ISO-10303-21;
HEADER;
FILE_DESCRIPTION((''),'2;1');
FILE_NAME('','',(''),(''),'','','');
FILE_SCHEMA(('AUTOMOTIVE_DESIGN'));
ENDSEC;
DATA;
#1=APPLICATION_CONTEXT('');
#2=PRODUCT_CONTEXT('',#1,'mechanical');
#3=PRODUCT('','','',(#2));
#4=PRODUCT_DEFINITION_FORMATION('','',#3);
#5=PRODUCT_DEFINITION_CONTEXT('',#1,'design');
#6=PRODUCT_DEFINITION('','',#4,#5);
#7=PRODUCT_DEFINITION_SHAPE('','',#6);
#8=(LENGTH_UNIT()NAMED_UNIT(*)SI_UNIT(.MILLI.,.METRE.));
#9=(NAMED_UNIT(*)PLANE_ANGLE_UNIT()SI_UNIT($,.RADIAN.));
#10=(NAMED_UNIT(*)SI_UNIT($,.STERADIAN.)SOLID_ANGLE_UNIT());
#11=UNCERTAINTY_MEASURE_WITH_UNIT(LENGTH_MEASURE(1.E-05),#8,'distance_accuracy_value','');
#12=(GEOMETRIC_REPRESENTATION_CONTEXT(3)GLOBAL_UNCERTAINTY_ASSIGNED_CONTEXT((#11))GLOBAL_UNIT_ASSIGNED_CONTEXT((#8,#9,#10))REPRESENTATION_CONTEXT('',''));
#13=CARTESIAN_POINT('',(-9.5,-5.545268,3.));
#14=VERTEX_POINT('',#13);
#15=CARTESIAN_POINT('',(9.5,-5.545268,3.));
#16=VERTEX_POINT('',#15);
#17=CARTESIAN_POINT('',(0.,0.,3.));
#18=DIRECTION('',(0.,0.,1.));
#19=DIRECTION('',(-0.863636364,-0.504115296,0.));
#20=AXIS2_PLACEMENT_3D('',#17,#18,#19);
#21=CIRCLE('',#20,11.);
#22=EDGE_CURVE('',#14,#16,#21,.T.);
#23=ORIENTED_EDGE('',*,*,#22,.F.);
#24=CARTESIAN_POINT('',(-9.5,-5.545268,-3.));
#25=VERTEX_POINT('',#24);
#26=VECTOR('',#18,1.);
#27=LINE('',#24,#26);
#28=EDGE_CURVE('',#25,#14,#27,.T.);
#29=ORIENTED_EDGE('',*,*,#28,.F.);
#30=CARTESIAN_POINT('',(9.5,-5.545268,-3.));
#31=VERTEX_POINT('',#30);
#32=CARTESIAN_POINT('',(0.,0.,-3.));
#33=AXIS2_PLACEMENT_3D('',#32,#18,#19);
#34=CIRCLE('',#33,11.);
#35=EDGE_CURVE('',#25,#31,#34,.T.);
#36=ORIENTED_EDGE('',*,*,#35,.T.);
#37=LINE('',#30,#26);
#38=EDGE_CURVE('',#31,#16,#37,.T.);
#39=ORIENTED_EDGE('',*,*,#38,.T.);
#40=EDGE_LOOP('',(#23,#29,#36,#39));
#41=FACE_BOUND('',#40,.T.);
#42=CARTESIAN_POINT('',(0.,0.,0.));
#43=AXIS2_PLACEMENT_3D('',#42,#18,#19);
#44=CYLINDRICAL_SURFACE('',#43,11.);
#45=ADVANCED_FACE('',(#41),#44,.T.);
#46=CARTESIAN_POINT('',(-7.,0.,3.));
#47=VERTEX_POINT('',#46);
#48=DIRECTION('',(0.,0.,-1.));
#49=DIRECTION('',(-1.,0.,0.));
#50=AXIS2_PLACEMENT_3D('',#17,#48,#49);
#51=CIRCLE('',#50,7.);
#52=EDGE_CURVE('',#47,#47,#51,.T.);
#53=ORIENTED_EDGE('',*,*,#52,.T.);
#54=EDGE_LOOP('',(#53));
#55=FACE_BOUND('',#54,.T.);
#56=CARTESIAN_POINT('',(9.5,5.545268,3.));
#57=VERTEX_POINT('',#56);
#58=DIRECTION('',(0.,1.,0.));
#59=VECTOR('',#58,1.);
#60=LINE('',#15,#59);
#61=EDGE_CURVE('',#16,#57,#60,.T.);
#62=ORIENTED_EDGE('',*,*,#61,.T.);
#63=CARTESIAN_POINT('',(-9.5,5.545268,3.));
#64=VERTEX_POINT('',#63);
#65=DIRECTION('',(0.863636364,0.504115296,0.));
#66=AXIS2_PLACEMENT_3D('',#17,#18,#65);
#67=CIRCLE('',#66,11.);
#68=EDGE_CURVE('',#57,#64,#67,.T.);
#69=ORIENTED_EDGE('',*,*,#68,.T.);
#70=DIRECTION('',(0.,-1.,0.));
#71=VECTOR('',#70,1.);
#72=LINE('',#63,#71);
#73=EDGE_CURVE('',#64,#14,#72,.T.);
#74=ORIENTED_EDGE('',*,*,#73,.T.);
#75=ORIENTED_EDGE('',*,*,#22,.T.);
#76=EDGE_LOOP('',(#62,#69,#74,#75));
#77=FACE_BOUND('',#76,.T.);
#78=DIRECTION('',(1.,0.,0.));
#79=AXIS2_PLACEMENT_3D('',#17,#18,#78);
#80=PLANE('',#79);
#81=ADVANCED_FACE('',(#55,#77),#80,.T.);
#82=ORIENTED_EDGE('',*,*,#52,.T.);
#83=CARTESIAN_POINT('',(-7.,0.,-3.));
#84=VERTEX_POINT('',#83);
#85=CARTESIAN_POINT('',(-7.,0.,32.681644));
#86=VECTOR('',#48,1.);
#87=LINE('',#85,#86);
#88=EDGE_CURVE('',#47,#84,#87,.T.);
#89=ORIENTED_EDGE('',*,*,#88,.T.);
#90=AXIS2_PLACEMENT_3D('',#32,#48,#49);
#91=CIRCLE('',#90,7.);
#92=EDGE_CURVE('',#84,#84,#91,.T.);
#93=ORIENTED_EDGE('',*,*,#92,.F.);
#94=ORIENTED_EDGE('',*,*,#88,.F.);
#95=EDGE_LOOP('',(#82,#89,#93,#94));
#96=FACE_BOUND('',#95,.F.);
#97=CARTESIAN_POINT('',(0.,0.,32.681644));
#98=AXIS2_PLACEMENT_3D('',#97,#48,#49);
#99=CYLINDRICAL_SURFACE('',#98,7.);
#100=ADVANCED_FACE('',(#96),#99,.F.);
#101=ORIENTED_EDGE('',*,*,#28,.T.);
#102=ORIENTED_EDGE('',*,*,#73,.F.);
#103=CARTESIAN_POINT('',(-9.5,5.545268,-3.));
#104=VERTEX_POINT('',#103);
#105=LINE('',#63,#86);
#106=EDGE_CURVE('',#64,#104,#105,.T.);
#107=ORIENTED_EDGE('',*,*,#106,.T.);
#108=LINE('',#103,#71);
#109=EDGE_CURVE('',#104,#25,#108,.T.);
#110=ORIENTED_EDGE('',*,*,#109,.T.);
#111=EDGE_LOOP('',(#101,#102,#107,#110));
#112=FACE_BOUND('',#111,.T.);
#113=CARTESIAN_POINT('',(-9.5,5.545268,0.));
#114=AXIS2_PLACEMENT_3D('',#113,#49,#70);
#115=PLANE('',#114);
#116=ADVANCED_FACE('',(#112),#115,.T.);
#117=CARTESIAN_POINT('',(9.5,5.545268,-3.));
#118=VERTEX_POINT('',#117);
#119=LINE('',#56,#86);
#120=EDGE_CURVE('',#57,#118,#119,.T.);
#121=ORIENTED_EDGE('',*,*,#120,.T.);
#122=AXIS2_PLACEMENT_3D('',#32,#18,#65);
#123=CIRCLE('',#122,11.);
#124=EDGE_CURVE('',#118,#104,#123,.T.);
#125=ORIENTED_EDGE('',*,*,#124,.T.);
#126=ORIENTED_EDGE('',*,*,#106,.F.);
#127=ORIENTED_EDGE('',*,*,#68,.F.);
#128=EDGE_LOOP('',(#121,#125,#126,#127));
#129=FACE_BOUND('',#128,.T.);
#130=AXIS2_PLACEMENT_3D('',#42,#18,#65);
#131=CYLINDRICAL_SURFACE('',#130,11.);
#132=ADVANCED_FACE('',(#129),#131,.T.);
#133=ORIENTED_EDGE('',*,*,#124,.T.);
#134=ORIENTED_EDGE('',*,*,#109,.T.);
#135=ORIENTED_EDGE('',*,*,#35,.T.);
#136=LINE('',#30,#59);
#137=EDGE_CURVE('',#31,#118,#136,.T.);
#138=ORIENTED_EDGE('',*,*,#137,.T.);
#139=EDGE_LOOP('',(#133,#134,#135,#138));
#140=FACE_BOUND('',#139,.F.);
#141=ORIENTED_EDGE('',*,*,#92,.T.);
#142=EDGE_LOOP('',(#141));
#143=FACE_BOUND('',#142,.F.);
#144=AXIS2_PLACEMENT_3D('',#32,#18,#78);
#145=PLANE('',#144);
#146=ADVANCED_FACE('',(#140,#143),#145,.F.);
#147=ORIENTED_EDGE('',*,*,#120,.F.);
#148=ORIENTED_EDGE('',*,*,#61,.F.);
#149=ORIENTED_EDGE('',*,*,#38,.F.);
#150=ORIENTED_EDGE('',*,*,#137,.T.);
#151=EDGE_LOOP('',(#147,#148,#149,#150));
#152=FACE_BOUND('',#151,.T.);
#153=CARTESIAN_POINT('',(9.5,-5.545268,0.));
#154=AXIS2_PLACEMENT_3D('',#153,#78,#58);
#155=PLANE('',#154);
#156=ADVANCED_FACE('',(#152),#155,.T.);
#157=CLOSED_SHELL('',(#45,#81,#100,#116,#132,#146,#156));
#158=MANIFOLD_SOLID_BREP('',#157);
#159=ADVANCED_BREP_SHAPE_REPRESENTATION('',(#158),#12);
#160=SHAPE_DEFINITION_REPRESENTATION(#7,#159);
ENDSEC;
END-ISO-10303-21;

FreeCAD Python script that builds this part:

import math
import FreeCAD as App
import Part
import Sketcher
from FreeCAD import Vector

doc = App.newDocument("Part")
body = doc.addObject("PartDesign::Body", "Body")

sketch1 = body.newObject("Sketcher::SketchObject", "Sketch")
sketch1.AttachmentSupport = (doc.getObject("XY_Plane"), [""])
sketch1.MapMode = "FlatFace"
sketch1.addGeometry([
    Part.LineSegment(Vector(-9.5, 5.545268, 0), Vector(-9.5, -5.545268, 0)),
    Part.ArcOfCircle(Part.Circle(Vector(0, 0, 0), Vector(0, 0, 1), 11), math.radians(-149.727359), math.radians(-30.272641)),
    Part.LineSegment(Vector(9.5, -5.545268, 0), Vector(9.5, 5.545268, 0)),
    Part.ArcOfCircle(Part.Circle(Vector(0, 0, 0), Vector(0, 0, 1), 11), math.radians(30.272641), math.radians(149.727359)),
], False)
sketch1.addConstraint([
    Sketcher.Constraint("Coincident", 0, 2, 1, 1),
    Sketcher.Constraint("Coincident", 1, 2, 2, 1),
    Sketcher.Constraint("Coincident", 2, 2, 3, 1),
    Sketcher.Constraint("Coincident", 3, 2, 0, 1),
    Sketcher.Constraint("Vertical", 0),
    Sketcher.Constraint("Vertical", 2),
    Sketcher.Constraint("Coincident", 1, 3, -1, 1),
    Sketcher.Constraint("Coincident", 3, 3, -1, 1),
    Sketcher.Constraint("Equal", 1, 3),
    Sketcher.Constraint("Horizontal", 0, 2, 1, 2),
    Sketcher.Constraint("Radius", 1, 11.0),
    Sketcher.Constraint("DistanceX", 0, 2, 1, 2, 19.0),
])
pad1 = body.newObject("PartDesign::Pad", "Pad")
pad1.Profile = sketch1
pad1.Length = 6
pad1.Midplane = True

sketch2 = body.newObject("Sketcher::SketchObject", "Sketch001")
sketch2.AttachmentSupport = (doc.getObject("XY_Plane"), [""])
sketch2.MapMode = "FlatFace"
sketch2.AttachmentOffset = App.Placement(Vector(0, 0, 3), App.Rotation())
sketch2.addGeometry(Part.Circle(Vector(0, 0, 0), Vector(0, 0, 1), 7), False)
sketch2.addConstraint([
    Sketcher.Constraint("Coincident", 0, 3, -1, 1),
    Sketcher.Constraint("Diameter", 0, 14.0),
])
doc.recompute()
hole = body.newObject("PartDesign::Hole", "Hole")
hole.Profile = sketch2
hole.ThreadType = "None"
hole.Diameter = 14
hole.DepthType = "ThroughAll"

doc.recompute()
